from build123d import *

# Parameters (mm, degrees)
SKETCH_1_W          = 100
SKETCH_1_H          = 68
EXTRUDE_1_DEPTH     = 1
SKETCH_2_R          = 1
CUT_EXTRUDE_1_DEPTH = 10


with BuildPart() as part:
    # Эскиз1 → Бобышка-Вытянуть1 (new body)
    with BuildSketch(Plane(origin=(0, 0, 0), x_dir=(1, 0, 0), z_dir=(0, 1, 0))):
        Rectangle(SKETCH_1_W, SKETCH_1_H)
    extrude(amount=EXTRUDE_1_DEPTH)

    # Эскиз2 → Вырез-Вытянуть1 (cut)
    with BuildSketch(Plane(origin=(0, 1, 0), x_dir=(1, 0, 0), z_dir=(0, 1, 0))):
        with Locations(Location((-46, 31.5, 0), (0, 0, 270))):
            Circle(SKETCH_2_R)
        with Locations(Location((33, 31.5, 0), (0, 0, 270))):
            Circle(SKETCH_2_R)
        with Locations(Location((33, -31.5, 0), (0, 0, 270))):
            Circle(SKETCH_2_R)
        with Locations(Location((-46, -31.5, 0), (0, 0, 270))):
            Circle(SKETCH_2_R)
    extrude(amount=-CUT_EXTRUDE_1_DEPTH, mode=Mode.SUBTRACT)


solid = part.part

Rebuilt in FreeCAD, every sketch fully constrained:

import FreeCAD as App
import Part
import Sketcher

V = App.Vector


def add_polygon(sketch, points):
    """Adds a closed chain of lines whose ends are joined by coincident constraints."""
    first, n = sketch.GeometryCount, len(points)
    for a, b in zip(points, points[1:] + points[:1]):
        sketch.addGeometry(Part.LineSegment(App.Vector(*a, 0), App.Vector(*b, 0)), False)
    for i in range(n):
        sketch.addConstraint(Sketcher.Constraint("Coincident", first + i, 2, first + (i + 1) % n, 1))

doc = App.newDocument("Part")
body = doc.addObject("PartDesign::Body", "Body")

# Sketch on XZ plane
sketch1 = body.newObject("Sketcher::SketchObject", "Sketch")
sketch1.AttachmentSupport = (doc.getObject("XZ_Plane"), [""])
sketch1.MapMode = "FlatFace"
add_polygon(sketch1, [(-50, -34), (-50, 34), (50, 34), (50, -34)])  # lines 0-3
sketch1.addConstraint([
    Sketcher.Constraint("Vertical", 0),
    Sketcher.Constraint("Horizontal", 1),
    Sketcher.Constraint("Vertical", 2),
    Sketcher.Constraint("Horizontal", 3),
    Sketcher.Constraint("Symmetric", 0, 2, 2, 2, -1, 1),
    Sketcher.Constraint("DistanceX", 1, 1, 1, 2, 100.0),
    Sketcher.Constraint("DistanceY", 0, 1, 0, 2, 68.0),
])
pad1 = body.newObject("PartDesign::Pad", "Pad")
pad1.Profile = sketch1
pad1.Length = 1
pad1.Reversed = True

# Sketch on XZ plane
sketch2 = body.newObject("Sketcher::SketchObject", "Sketch001")
sketch2.AttachmentSupport = (doc.getObject("XZ_Plane"), [""])
sketch2.MapMode = "FlatFace"
sketch2.AttachmentOffset = App.Placement(V(0, 0, -1), App.Rotation())
sketch2.addGeometry([
    Part.Circle(V(-46, -31.5, 0), V(0, 0, 1), 1),
    Part.Circle(V(33, -31.5, 0), V(0, 0, 1), 1),
    Part.Circle(V(33, 31.5, 0), V(0, 0, 1), 1),
    Part.Circle(V(-46, 31.5, 0), V(0, 0, 1), 1),
], False)
sketch2.addConstraint([
    Sketcher.Constraint("Equal", 0, 1),
    Sketcher.Constraint("Equal", 1, 2),
    Sketcher.Constraint("Equal", 2, 3),
    Sketcher.Constraint("Symmetric", 1, 3, 2, 3, -1),
    Sketcher.Constraint("Symmetric", 0, 3, 3, 3, -1),
    Sketcher.Constraint("Horizontal", 0, 3, 1, 3),
    Sketcher.Constraint("Diameter", 0, 2.0),
    Sketcher.Constraint("DistanceX", 0, 3, -1, 1, 46.0),
    Sketcher.Constraint("DistanceX", -1, 1, 1, 3, 33.0),
    Sketcher.Constraint("DistanceY", 1, 3, 2, 3, 63.0),
])
pocket1 = body.newObject("PartDesign::Pocket", "Pocket")
pocket1.Profile = sketch2
pocket1.Length = 10
pocket1.Reversed = True

doc.recompute()
